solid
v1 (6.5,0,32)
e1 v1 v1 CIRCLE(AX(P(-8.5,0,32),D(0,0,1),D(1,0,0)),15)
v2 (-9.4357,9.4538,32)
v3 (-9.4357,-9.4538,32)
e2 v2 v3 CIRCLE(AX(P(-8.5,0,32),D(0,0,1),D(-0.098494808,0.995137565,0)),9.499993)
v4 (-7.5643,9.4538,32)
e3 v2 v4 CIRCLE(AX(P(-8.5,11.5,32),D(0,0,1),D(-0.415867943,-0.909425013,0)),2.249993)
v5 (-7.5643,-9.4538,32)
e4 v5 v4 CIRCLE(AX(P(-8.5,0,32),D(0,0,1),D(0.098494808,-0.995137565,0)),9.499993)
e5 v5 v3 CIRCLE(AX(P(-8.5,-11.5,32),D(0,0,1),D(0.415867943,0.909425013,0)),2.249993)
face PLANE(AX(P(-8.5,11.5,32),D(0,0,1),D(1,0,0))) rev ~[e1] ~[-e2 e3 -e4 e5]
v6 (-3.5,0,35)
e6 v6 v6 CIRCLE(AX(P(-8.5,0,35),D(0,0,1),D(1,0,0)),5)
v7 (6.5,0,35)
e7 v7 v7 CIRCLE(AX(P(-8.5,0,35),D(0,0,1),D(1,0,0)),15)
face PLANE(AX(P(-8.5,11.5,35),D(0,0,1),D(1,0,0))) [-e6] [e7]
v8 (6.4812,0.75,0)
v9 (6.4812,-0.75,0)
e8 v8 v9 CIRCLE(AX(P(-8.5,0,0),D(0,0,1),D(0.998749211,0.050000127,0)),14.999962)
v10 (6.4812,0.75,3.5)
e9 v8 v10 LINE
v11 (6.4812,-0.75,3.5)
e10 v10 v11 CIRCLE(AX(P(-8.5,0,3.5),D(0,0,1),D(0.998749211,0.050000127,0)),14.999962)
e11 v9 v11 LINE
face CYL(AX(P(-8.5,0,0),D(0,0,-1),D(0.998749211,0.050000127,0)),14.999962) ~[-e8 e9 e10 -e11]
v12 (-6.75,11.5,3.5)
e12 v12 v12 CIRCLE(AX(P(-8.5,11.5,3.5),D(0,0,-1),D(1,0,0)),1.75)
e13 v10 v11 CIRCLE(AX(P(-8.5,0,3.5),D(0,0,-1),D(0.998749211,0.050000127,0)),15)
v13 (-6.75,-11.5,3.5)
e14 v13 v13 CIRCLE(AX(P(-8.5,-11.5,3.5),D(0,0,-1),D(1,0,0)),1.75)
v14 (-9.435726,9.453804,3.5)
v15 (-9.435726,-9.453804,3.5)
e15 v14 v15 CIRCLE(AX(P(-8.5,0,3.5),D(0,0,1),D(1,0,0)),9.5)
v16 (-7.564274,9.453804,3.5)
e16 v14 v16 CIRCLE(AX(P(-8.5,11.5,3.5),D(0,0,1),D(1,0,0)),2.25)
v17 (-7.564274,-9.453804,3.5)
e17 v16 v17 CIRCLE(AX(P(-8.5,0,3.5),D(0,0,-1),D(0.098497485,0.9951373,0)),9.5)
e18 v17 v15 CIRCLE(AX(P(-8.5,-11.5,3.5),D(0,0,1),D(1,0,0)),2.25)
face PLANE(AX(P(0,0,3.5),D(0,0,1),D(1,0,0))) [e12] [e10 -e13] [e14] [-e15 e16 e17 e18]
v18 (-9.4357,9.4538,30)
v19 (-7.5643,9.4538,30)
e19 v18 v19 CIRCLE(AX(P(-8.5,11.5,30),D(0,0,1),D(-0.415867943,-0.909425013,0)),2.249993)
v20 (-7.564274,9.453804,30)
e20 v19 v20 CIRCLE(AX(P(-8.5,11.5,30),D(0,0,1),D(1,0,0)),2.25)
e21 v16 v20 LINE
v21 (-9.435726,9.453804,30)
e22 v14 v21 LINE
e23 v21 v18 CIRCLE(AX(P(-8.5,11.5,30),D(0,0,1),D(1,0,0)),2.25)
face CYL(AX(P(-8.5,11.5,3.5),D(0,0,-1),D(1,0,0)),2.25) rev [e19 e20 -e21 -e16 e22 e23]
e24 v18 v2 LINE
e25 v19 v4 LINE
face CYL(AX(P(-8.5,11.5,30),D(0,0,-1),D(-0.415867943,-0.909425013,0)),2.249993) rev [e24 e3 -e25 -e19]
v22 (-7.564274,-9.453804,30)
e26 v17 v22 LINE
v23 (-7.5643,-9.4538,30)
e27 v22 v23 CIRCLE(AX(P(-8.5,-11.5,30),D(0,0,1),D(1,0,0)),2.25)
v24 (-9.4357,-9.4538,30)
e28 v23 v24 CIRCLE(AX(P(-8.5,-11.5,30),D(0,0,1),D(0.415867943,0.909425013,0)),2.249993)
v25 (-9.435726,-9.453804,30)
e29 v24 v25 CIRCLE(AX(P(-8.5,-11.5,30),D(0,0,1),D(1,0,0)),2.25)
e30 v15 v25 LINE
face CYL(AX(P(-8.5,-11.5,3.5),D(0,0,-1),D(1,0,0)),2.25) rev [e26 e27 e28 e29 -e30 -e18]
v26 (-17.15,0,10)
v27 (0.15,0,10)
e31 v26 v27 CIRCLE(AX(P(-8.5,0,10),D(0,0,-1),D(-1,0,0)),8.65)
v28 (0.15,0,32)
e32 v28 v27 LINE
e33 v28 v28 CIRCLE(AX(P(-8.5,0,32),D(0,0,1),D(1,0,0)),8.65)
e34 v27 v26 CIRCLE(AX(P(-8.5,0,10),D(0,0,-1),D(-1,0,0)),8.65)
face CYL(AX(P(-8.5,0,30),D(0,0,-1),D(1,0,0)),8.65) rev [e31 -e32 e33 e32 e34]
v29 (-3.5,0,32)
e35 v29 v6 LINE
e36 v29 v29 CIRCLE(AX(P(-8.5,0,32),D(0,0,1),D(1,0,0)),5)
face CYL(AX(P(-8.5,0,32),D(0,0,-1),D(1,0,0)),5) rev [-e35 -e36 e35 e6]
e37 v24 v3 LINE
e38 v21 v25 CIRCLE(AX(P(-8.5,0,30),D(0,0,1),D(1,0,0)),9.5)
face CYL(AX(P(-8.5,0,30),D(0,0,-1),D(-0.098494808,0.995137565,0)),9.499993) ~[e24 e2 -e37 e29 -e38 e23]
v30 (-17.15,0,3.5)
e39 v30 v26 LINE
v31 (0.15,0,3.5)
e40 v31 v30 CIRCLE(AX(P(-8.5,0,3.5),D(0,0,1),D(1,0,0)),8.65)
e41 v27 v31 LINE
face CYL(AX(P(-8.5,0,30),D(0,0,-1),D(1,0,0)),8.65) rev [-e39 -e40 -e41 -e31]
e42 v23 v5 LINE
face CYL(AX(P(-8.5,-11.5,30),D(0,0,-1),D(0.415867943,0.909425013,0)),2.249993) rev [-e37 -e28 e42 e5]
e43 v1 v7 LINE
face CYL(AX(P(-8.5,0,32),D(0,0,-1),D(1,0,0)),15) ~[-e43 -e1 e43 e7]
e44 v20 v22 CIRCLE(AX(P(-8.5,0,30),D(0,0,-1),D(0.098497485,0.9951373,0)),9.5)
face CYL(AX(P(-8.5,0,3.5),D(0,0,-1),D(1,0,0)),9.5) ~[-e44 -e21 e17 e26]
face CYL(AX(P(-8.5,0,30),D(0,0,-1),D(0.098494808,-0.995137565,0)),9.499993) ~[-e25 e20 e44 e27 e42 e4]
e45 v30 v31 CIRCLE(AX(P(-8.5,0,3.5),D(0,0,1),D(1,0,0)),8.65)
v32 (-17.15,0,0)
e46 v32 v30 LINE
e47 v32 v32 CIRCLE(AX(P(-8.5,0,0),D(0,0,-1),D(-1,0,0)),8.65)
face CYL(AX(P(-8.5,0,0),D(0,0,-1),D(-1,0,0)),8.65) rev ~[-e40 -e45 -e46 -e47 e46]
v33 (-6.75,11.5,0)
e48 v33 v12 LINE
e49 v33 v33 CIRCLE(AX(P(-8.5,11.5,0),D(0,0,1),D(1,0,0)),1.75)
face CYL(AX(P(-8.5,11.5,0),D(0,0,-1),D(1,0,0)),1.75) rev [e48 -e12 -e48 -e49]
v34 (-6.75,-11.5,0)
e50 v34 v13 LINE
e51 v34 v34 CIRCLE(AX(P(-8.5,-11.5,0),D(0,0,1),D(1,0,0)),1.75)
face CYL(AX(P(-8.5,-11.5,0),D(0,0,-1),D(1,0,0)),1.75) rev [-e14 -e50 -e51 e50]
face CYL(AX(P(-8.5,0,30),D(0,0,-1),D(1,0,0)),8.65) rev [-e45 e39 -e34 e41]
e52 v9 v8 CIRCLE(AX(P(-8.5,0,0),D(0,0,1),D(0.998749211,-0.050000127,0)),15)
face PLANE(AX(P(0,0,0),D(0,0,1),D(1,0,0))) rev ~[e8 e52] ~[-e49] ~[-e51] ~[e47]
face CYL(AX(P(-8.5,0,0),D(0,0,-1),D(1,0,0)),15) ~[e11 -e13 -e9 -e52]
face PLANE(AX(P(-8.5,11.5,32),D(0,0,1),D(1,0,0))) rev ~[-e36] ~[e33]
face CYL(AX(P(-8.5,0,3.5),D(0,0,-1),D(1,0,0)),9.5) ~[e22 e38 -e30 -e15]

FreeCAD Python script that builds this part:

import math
import FreeCAD as App
import Part
import Sketcher

V = App.Vector
Q = App.Units.Quantity

doc = App.newDocument("Part")
body = doc.addObject("PartDesign::Body", "Body")

# Sketch on XY plane
sketch1 = doc.addObject("Sketcher::SketchObject", "Sketch")
body.addObject(sketch1)
sketch1.AttachmentSupport = (doc.XY_Plane, [""])
sketch1.MapMode = "FlatFace"
sketch1.addGeometry(Part.Circle(V(-8, 0, 0), V(0, 0, 1), 15), False)
sketch1.addConstraint([
    Sketcher.Constraint("PointOnObject", 0, 3, -1),
    Sketcher.Constraint("Diameter", 0, Q("30 mm")),
    Sketcher.Constraint("DistanceX", 0, 3, -1, 1, Q("8.5 mm")),
])
pad1 = doc.addObject("PartDesign::Pad", "Pad")
body.addObject(pad1)
pad1.Profile = sketch1
pad1.Length = 3.5

# Sketch on XY plane
sketch2 = doc.addObject("Sketcher::SketchObject", "Sketch001")
body.addObject(sketch2)
sketch2.AttachmentSupport = (doc.XY_Plane, [""])
sketch2.MapMode = "FlatFace"
sketch2.AttachmentOffset = App.Placement(V(0, 0, 3.5), App.Rotation())
sketch2.addGeometry(Part.Circle(V(-8, 0, 0), V(0, 0, 1), 5), False)
sketch2.addConstraint([
    Sketcher.Constraint("PointOnObject", 0, 3, -1),
    Sketcher.Constraint("Diameter", 0, Q("10 mm")),
    Sketcher.Constraint("DistanceX", 0, 3, -1, 1, Q("8.5 mm")),
])
pocket1 = doc.addObject("PartDesign::Pocket", "Pocket")
body.addObject(pocket1)
pocket1.Profile = sketch2
pocket1.Length = 10

# Sketch on XY plane
sketch3 = doc.addObject("Sketcher::SketchObject", "Sketch002")
body.addObject(sketch3)
sketch3.AttachmentSupport = (doc.XY_Plane, [""])
sketch3.MapMode = "FlatFace"
sketch3.AttachmentOffset = App.Placement(V(0, 0, 3.5), App.Rotation())
sketch3.addGeometry([
    Part.ArcOfCircle(Part.Circle(V(-8.5, -11.5, 0), V(0, 0, 1), 2.2), math.radians(65), math.radians(115)),  # 0
    Part.ArcOfCircle(Part.Circle(V(-8.5, 0, 0), V(0, 0, 1), 9.5), math.radians(-84), math.radians(84)),  # 1
    Part.ArcOfCircle(Part.Circle(V(-8.5, 11.5, 0), V(0, 0, 1), 2.2), math.radians(-115), math.radians(-65)),  # 2
    Part.ArcOfCircle(Part.Circle(V(-8.5, 0, 0), V(0, 0, 1), 9.5), math.radians(96), math.radians(264)),  # 3
    Part.Circle(V(-8.5, 0, 0), V(0, 0, 1), 8.7),  # 4
], False)
sketch3.addConstraint([
    Sketcher.Constraint("Coincident", 0, 1, 1, 1),
    Sketcher.Constraint("Coincident", 1, 2, 2, 2),
    Sketcher.Constraint("Coincident", 2, 1, 3, 1),
    Sketcher.Constraint("Coincident", 3, 2, 0, 2),
    Sketcher.Constraint("Coincident", 3, 3, 1, 3),
    Sketcher.Constraint("Coincident", 4, 3, 1, 3),
    Sketcher.Constraint("Equal", 0, 2),
    Sketcher.Constraint("Equal", 1, 3),
    Sketcher.Constraint("Symmetric", 0, 3, 2, 3, -1),
    Sketcher.Constraint("PointOnObject", 1, 3, -1),
    Sketcher.Constraint("Horizontal", 1, 2, 2, 1),
    Sketcher.Constraint("Diameter", 4, Q("17.3 mm")),
    Sketcher.Constraint("Radius", 1, Q("9.5 mm")),
    Sketcher.Constraint("Radius", 0, Q("2.25 mm")),
    Sketcher.Constraint("DistanceY", 0, 3, 2, 3, Q("23 mm")),
    Sketcher.Constraint("DistanceX", 0, 3, -1, 1, Q("8.5 mm")),
])
pad2 = doc.addObject("PartDesign::Pad", "Pad001")
body.addObject(pad2)
pad2.Profile = sketch3
pad2.Length = 26.5

# Sketch on XY plane
sketch4 = doc.addObject("Sketcher::SketchObject", "Sketch003")
body.addObject(sketch4)
sketch4.AttachmentSupport = (doc.XY_Plane, [""])
sketch4.MapMode = "FlatFace"
sketch4.addGeometry([
    Part.Circle(V(-8.5, -11.5, 0), V(0, 0, 1), 1.8),
    Part.Circle(V(-8.5, 11.5, 0), V(0, 0, 1), 1.8),
], False)
sketch4.addConstraint([
    Sketcher.Constraint("Equal", 0, 1),
    Sketcher.Constraint("Symmetric", 0, 3, 1, 3, -1),
    Sketcher.Constraint("Diameter", 0, Q("3.5 mm")),
    Sketcher.Constraint("DistanceY", 0, 3, 1, 3, Q("23 mm")),
    Sketcher.Constraint("DistanceX", 0, 3, -1, 1, Q("8.5 mm")),
])
pocket2 = doc.addObject("PartDesign::Pocket", "Pocket001")
body.addObject(pocket2)
pocket2.Profile = sketch4
pocket2.Length = 10
pocket2.Reversed = True

# Sketch on XY plane
sketch5 = doc.addObject("Sketcher::SketchObject", "Sketch004")
body.addObject(sketch5)
sketch5.AttachmentSupport = (doc.XY_Plane, [""])
sketch5.MapMode = "FlatFace"
sketch5.AttachmentOffset = App.Placement(V(0, 0, 30), App.Rotation())
sketch5.addGeometry([
    Part.ArcOfCircle(Part.Circle(V(-8.5, -11.5, 0), V(0, 0, 1), 2.2), math.radians(65), math.radians(115)),  # 0
    Part.ArcOfCircle(Part.Circle(V(-8.5, 0, 0), V(0, 0, 1), 9.5), math.radians(-84), math.radians(84)),  # 1
    Part.ArcOfCircle(Part.Circle(V(-8.5, 11.5, 0), V(0, 0, 1), 2.2), math.radians(-115), math.radians(-65)),  # 2
    Part.ArcOfCircle(Part.Circle(V(-8.5, 0, 0), V(0, 0, 1), 9.5), math.radians(96), math.radians(264)),  # 3
    Part.Circle(V(-8.5, 0, 0), V(0, 0, 1), 8.7),  # 4
], False)
sketch5.addConstraint([
    Sketcher.Constraint("Coincident", 0, 1, 1, 1),
    Sketcher.Constraint("Coincident", 1, 2, 2, 2),
    Sketcher.Constraint("Coincident", 2, 1, 3, 1),
    Sketcher.Constraint("Coincident", 3, 2, 0, 2),
    Sketcher.Constraint("Coincident", 3, 3, 1, 3),
    Sketcher.Constraint("Coincident", 4, 3, 1, 3),
    Sketcher.Constraint("Equal", 0, 2),
    Sketcher.Constraint("Equal", 1, 3),
    Sketcher.Constraint("Symmetric", 0, 3, 2, 3, -1),
    Sketcher.Constraint("PointOnObject", 1, 3, -1),
    Sketcher.Constraint("Horizontal", 1, 2, 2, 1),
    Sketcher.Constraint("Diameter", 4, Q("17.3 mm")),
    Sketcher.Constraint("Radius", 1, Q("9.5 mm")),
    Sketcher.Constraint("Radius", 0, Q("2.25 mm")),
    Sketcher.Constraint("DistanceY", 0, 3, 2, 3, Q("23 mm")),
    Sketcher.Constraint("DistanceX", 0, 3, -1, 1, Q("8.5 mm")),
])
pad3 = doc.addObject("PartDesign::Pad", "Pad002")
body.addObject(pad3)
pad3.Profile = sketch5
pad3.Length = 2

# Sketch on XY plane
sketch6 = doc.addObject("Sketcher::SketchObject", "Sketch005")
body.addObject(sketch6)
sketch6.AttachmentSupport = (doc.XY_Plane, [""])
sketch6.MapMode = "FlatFace"
sketch6.AttachmentOffset = App.Placement(V(0, 0, 32), App.Rotation())
sketch6.addGeometry([
    Part.Circle(V(-8, 0, 0), V(0, 0, 1), 15),
    Part.Circle(V(-8, 0, 0), V(0, 0, 1), 5),
], False)
sketch6.addConstraint([
    Sketcher.Constraint("Coincident", 1, 3, 0, 3),
    Sketcher.Constraint("PointOnObject", 0, 3, -1),
    Sketcher.Constraint("Diameter", 0, Q("30 mm")),
    Sketcher.Constraint("Diameter", 1, Q("10 mm")),
    Sketcher.Constraint("DistanceX", 0, 3, -1, 1, Q("8.5 mm")),
])
pad4 = doc.addObject("PartDesign::Pad", "Pad003")
body.addObject(pad4)
pad4.Profile = sketch6
pad4.Length = 3

# Sketch on XY plane
sketch7 = doc.addObject("Sketcher::SketchObject", "Sketch006")
body.addObject(sketch7)
sketch7.AttachmentSupport = (doc.XY_Plane, [""])
sketch7.MapMode = "FlatFace"
sketch7.addGeometry(Part.Circle(V(-8, 0, 0), V(0, 0, 1), 9), False)
sketch7.addConstraint([
    Sketcher.Constraint("PointOnObject", 0, 3, -1),
    Sketcher.Constraint("Diameter", 0, Q("17.3 mm")),
    Sketcher.Constraint("DistanceX", 0, 3, -1, 1, Q("8.5 mm")),
])
pocket3 = doc.addObject("PartDesign::Pocket", "Pocket002")
body.addObject(pocket3)
pocket3.Profile = sketch7
pocket3.Length = 10
pocket3.Reversed = True

doc.recompute()
